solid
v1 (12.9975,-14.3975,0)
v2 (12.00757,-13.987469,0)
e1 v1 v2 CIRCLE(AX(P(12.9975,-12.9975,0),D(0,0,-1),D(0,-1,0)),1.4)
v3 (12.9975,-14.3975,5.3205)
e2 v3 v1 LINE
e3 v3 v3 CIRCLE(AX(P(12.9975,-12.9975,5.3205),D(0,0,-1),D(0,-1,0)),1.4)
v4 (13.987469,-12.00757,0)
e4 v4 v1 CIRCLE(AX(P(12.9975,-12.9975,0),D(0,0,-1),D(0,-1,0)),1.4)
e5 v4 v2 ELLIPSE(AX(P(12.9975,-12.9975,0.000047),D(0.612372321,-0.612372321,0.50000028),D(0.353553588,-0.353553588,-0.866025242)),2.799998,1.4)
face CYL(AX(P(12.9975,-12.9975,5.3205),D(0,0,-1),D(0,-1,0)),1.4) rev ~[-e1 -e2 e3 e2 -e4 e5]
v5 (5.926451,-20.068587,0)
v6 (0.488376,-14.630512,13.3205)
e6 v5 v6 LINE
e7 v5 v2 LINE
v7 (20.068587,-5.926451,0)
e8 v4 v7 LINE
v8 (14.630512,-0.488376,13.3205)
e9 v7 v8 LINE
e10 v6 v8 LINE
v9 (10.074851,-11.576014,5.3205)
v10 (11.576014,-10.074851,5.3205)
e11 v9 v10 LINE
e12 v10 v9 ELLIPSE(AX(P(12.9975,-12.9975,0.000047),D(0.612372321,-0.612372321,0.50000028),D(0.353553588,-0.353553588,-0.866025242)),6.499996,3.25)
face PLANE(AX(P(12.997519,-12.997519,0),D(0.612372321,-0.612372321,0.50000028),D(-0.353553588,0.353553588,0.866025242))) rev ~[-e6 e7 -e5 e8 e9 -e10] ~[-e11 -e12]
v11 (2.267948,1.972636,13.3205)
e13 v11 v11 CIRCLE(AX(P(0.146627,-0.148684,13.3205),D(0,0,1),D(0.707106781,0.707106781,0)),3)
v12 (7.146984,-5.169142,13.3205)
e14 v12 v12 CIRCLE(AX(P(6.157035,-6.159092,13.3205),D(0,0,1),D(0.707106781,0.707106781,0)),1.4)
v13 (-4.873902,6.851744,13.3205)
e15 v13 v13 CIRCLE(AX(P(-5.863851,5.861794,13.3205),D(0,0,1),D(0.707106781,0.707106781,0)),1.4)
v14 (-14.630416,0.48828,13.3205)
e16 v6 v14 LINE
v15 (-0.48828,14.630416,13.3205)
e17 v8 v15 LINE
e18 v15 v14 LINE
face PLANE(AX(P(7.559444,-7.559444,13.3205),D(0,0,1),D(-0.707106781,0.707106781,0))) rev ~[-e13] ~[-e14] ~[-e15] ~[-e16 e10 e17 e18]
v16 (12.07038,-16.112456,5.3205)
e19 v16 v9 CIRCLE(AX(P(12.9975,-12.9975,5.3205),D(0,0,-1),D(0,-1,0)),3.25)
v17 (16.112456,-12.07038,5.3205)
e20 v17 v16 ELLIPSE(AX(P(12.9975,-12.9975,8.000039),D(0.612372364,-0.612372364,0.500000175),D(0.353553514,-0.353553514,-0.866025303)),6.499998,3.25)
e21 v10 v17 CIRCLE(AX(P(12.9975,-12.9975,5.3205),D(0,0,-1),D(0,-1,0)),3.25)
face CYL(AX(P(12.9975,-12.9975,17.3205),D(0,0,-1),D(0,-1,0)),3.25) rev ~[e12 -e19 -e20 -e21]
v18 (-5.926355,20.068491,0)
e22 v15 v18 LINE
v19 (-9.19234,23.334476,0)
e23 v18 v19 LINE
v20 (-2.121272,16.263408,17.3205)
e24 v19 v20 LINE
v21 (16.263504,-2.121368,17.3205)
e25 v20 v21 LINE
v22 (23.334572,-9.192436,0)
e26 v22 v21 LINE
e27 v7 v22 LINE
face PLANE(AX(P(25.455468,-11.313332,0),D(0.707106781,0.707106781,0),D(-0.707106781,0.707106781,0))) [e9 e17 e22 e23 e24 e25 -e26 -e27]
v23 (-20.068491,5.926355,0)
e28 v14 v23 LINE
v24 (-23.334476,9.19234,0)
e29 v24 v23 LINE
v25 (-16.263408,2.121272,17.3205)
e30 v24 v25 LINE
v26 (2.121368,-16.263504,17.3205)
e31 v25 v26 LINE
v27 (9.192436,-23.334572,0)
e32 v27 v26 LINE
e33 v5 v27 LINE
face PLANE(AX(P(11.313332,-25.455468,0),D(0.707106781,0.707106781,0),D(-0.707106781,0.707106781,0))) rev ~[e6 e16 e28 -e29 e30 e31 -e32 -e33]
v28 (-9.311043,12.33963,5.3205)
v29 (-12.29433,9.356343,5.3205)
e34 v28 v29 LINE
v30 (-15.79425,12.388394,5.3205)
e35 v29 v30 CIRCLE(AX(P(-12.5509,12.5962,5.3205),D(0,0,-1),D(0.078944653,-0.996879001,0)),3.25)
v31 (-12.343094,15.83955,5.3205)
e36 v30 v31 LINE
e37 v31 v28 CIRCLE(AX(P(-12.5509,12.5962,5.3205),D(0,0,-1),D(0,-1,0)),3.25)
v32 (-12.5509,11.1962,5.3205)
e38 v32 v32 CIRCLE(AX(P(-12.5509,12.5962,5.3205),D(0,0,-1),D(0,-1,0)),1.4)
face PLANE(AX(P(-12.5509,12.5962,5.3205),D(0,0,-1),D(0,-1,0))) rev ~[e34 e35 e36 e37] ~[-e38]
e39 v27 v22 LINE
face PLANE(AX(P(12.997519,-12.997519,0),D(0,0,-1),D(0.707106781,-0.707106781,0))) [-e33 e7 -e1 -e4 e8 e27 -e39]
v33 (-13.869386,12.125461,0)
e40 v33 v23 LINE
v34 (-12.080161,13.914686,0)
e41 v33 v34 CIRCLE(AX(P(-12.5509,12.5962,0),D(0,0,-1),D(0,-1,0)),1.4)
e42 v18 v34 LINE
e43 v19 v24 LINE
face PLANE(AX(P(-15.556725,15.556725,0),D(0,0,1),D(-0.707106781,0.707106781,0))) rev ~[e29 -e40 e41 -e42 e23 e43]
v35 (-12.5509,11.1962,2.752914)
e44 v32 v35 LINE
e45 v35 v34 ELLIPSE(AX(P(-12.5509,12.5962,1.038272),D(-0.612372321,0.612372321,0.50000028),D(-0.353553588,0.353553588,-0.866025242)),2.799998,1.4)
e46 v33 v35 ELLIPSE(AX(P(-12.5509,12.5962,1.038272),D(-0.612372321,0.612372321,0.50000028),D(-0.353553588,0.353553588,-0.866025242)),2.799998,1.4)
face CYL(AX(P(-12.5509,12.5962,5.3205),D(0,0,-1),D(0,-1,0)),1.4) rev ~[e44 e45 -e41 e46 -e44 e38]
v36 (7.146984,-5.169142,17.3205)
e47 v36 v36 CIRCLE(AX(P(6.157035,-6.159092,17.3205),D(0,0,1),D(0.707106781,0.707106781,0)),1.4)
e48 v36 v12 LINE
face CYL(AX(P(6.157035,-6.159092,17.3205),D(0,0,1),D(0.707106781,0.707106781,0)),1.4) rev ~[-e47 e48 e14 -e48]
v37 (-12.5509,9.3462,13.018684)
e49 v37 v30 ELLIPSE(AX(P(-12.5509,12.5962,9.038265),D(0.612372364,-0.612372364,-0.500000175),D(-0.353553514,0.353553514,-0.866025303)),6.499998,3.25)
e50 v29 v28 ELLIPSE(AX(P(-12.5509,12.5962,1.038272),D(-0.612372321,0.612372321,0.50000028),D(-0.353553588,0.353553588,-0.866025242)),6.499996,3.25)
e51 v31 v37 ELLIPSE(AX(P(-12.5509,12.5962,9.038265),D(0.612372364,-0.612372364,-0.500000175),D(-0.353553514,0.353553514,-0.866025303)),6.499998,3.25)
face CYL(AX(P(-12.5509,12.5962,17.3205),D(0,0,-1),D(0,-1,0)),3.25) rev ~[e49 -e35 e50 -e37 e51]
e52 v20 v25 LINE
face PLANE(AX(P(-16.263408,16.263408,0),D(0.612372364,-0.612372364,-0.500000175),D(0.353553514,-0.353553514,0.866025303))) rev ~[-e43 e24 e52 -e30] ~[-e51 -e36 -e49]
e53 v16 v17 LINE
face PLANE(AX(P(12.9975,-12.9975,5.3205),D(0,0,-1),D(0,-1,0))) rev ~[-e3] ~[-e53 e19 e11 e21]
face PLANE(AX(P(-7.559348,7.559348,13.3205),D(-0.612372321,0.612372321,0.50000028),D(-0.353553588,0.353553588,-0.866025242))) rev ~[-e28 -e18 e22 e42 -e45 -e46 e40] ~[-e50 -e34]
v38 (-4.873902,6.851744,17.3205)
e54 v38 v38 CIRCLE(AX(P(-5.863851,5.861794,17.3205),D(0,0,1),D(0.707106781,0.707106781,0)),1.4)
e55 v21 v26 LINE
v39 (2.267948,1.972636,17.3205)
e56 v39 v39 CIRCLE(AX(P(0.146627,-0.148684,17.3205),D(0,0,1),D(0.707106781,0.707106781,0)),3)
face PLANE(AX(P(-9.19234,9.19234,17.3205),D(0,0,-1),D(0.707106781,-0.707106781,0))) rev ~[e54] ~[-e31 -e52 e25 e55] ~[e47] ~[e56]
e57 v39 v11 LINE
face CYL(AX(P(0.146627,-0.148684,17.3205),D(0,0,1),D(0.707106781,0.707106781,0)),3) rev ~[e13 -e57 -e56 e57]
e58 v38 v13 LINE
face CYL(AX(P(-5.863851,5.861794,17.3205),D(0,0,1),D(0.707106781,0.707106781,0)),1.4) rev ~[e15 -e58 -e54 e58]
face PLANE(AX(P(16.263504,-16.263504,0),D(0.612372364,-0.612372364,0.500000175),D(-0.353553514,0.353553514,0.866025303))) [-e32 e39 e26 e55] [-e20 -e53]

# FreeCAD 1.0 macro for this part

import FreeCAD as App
import Part
import Sketcher
Q = App.Units.Quantity

doc = App.newDocument("Part")
body = doc.addObject("PartDesign::Body", "Body")

sketch1 = doc.addObject("Sketcher::SketchObject", "Sketch")
body.addObject(sketch1)
sketch1.Placement = App.Placement(App.Vector(18.3844, -18.3844, 0), App.Rotation(App.Vector(-0.707106781, 0.707106781, 0), App.Vector(0, 0, 0.999999999), App.Vector(0.707106781, 0.707106781, 0), "ZXY"))
sketch1.addGeometry([
    Part.LineSegment(App.Vector(13, 17.3, 0), App.Vector(3, 0, 0)),
    Part.LineSegment(App.Vector(3, 0, 0), App.Vector(7.6, 0, 0)),
    Part.LineSegment(App.Vector(7.6, 0, 0), App.Vector(15.3, 13.3, 0)),
    Part.LineSegment(App.Vector(15.3, 13.3, 0), App.Vector(36.7, 13.3, 0)),
    Part.LineSegment(App.Vector(36.7, 13.3, 0), App.Vector(44.4, 0, 0)),
    Part.LineSegment(App.Vector(44.4, 0, 0), App.Vector(49, 0, 0)),
    Part.LineSegment(App.Vector(49, 0, 0), App.Vector(39, 17.3, 0)),
    Part.LineSegment(App.Vector(39, 17.3, 0), App.Vector(13, 17.3, 0)),
], False)
sketch1.addConstraint([
    Sketcher.Constraint("Coincident", 0, 2, 1, 1),
    Sketcher.Constraint("Coincident", 1, 2, 2, 1),
    Sketcher.Constraint("Coincident", 2, 2, 3, 1),
    Sketcher.Constraint("Coincident", 3, 2, 4, 1),
    Sketcher.Constraint("Coincident", 4, 2, 5, 1),
    Sketcher.Constraint("Coincident", 5, 2, 6, 1),
    Sketcher.Constraint("Coincident", 6, 2, 7, 1),
    Sketcher.Constraint("Coincident", 7, 2, 0, 1),
    Sketcher.Constraint("Horizontal", 1),
    Sketcher.Constraint("Horizontal", 3),
    Sketcher.Constraint("Horizontal", 5),
    Sketcher.Constraint("Horizontal", 7),
    Sketcher.Constraint("PointOnObject", 0, 2, -1),
    Sketcher.Constraint("PointOnObject", 4, 2, -1),
    Sketcher.Constraint("Parallel", 0, 2),
    Sketcher.Constraint("Parallel", 4, 6),
    Sketcher.Constraint("Equal", 1, 5),
    Sketcher.Constraint("Equal", 2, 4),
    Sketcher.Constraint("Angle", 0, Q("-120 deg")),
    Sketcher.Constraint("Distance", 0, 20.0),
    Sketcher.Constraint("DistanceY", 3, 2, 6, 2, 4.0),
    Sketcher.Constraint("DistanceX", 7, 2, 7, 1, 26.0),
    Sketcher.Constraint("DistanceX", -1, 1, 3, 2, 36.69),
    Sketcher.Constraint("DistanceX", 1, 1, 1, 2, 4.6188),
])
pad1 = doc.addObject("PartDesign::Pad", "Pad")
body.addObject(pad1)
pad1.Profile = sketch1
pad1.Length = 20
pad1.Midplane = True

sketch2 = doc.addObject("Sketcher::SketchObject", "Sketch001")
body.addObject(sketch2)
sketch2.AttachmentSupport = (doc.XY_Plane, [""])
sketch2.MapMode = "FlatFace"
sketch2.AttachmentOffset = App.Placement(App.Vector(0, 0, 17.3205), App.Rotation())
sketch2.addGeometry([
    Part.Circle(App.Vector(-12.6, 12.6, 0), App.Vector(0, 0, 1), 1.4),
    Part.Circle(App.Vector(13, -13, 0), App.Vector(0, 0, 1), 1.4),
], False)
sketch2.addConstraint([
    Sketcher.Constraint("Equal", 0, 1),
    Sketcher.Constraint("Diameter", 0, 2.8),
    Sketcher.Constraint("DistanceX", 0, 3, -1, 1, 12.551),
    Sketcher.Constraint("DistanceY", -1, 1, 0, 3, 12.5962),
    Sketcher.Constraint("DistanceX", -1, 1, 1, 3, 12.9975),
    Sketcher.Constraint("DistanceY", 1, 3, -1, 1, 12.9975),
])
doc.recompute()
hole = doc.addObject("PartDesign::Hole", "Hole")
body.addObject(hole)
hole.Profile = sketch2
hole.ThreadType = "None"
hole.Diameter = 2.8
hole.DepthType = "ThroughAll"
hole.HoleCutType = "Counterbore"
hole.HoleCutDiameter = 6.5
hole.HoleCutDepth = 12

sketch3 = doc.addObject("Sketcher::SketchObject", "Sketch002")
body.addObject(sketch3)
sketch3.AttachmentSupport = (doc.XY_Plane, [""])
sketch3.MapMode = "FlatFace"
sketch3.AttachmentOffset = App.Placement(App.Vector(0, 0, 17.3205), App.Rotation())
sketch3.addGeometry([
    Part.Circle(App.Vector(0.1, -0.1, 0), App.Vector(0, 0, 1), 3),
    Part.Circle(App.Vector(-5.9, 5.9, 0), App.Vector(0, 0, 1), 1.4),
    Part.Circle(App.Vector(6.2, -6.2, 0), App.Vector(0, 0, 1), 1.4),
], False)
sketch3.addConstraint([
    Sketcher.Constraint("Equal", 1, 2),
    Sketcher.Constraint("Diameter", 1, 2.8),
    Sketcher.Constraint("Diameter", 0, 6.0),
    Sketcher.Constraint("DistanceX", -1, 1, 2, 3, 6.157),
    Sketcher.Constraint("DistanceY", 2, 3, -1, 1, 6.159),
    Sketcher.Constraint("DistanceX", 1, 3, 2, 3, 12.021),
    Sketcher.Constraint("DistanceY", 2, 3, 1, 3, 12.021),
    Sketcher.Constraint("DistanceX", -1, 1, 0, 3, 0.1466),
    Sketcher.Constraint("DistanceY", 0, 3, -1, 1, 0.1487),
])
pocket1 = doc.addObject("PartDesign::Pocket", "Pocket")
body.addObject(pocket1)
pocket1.Profile = sketch3
pocket1.Length = 20

doc.recompute()
